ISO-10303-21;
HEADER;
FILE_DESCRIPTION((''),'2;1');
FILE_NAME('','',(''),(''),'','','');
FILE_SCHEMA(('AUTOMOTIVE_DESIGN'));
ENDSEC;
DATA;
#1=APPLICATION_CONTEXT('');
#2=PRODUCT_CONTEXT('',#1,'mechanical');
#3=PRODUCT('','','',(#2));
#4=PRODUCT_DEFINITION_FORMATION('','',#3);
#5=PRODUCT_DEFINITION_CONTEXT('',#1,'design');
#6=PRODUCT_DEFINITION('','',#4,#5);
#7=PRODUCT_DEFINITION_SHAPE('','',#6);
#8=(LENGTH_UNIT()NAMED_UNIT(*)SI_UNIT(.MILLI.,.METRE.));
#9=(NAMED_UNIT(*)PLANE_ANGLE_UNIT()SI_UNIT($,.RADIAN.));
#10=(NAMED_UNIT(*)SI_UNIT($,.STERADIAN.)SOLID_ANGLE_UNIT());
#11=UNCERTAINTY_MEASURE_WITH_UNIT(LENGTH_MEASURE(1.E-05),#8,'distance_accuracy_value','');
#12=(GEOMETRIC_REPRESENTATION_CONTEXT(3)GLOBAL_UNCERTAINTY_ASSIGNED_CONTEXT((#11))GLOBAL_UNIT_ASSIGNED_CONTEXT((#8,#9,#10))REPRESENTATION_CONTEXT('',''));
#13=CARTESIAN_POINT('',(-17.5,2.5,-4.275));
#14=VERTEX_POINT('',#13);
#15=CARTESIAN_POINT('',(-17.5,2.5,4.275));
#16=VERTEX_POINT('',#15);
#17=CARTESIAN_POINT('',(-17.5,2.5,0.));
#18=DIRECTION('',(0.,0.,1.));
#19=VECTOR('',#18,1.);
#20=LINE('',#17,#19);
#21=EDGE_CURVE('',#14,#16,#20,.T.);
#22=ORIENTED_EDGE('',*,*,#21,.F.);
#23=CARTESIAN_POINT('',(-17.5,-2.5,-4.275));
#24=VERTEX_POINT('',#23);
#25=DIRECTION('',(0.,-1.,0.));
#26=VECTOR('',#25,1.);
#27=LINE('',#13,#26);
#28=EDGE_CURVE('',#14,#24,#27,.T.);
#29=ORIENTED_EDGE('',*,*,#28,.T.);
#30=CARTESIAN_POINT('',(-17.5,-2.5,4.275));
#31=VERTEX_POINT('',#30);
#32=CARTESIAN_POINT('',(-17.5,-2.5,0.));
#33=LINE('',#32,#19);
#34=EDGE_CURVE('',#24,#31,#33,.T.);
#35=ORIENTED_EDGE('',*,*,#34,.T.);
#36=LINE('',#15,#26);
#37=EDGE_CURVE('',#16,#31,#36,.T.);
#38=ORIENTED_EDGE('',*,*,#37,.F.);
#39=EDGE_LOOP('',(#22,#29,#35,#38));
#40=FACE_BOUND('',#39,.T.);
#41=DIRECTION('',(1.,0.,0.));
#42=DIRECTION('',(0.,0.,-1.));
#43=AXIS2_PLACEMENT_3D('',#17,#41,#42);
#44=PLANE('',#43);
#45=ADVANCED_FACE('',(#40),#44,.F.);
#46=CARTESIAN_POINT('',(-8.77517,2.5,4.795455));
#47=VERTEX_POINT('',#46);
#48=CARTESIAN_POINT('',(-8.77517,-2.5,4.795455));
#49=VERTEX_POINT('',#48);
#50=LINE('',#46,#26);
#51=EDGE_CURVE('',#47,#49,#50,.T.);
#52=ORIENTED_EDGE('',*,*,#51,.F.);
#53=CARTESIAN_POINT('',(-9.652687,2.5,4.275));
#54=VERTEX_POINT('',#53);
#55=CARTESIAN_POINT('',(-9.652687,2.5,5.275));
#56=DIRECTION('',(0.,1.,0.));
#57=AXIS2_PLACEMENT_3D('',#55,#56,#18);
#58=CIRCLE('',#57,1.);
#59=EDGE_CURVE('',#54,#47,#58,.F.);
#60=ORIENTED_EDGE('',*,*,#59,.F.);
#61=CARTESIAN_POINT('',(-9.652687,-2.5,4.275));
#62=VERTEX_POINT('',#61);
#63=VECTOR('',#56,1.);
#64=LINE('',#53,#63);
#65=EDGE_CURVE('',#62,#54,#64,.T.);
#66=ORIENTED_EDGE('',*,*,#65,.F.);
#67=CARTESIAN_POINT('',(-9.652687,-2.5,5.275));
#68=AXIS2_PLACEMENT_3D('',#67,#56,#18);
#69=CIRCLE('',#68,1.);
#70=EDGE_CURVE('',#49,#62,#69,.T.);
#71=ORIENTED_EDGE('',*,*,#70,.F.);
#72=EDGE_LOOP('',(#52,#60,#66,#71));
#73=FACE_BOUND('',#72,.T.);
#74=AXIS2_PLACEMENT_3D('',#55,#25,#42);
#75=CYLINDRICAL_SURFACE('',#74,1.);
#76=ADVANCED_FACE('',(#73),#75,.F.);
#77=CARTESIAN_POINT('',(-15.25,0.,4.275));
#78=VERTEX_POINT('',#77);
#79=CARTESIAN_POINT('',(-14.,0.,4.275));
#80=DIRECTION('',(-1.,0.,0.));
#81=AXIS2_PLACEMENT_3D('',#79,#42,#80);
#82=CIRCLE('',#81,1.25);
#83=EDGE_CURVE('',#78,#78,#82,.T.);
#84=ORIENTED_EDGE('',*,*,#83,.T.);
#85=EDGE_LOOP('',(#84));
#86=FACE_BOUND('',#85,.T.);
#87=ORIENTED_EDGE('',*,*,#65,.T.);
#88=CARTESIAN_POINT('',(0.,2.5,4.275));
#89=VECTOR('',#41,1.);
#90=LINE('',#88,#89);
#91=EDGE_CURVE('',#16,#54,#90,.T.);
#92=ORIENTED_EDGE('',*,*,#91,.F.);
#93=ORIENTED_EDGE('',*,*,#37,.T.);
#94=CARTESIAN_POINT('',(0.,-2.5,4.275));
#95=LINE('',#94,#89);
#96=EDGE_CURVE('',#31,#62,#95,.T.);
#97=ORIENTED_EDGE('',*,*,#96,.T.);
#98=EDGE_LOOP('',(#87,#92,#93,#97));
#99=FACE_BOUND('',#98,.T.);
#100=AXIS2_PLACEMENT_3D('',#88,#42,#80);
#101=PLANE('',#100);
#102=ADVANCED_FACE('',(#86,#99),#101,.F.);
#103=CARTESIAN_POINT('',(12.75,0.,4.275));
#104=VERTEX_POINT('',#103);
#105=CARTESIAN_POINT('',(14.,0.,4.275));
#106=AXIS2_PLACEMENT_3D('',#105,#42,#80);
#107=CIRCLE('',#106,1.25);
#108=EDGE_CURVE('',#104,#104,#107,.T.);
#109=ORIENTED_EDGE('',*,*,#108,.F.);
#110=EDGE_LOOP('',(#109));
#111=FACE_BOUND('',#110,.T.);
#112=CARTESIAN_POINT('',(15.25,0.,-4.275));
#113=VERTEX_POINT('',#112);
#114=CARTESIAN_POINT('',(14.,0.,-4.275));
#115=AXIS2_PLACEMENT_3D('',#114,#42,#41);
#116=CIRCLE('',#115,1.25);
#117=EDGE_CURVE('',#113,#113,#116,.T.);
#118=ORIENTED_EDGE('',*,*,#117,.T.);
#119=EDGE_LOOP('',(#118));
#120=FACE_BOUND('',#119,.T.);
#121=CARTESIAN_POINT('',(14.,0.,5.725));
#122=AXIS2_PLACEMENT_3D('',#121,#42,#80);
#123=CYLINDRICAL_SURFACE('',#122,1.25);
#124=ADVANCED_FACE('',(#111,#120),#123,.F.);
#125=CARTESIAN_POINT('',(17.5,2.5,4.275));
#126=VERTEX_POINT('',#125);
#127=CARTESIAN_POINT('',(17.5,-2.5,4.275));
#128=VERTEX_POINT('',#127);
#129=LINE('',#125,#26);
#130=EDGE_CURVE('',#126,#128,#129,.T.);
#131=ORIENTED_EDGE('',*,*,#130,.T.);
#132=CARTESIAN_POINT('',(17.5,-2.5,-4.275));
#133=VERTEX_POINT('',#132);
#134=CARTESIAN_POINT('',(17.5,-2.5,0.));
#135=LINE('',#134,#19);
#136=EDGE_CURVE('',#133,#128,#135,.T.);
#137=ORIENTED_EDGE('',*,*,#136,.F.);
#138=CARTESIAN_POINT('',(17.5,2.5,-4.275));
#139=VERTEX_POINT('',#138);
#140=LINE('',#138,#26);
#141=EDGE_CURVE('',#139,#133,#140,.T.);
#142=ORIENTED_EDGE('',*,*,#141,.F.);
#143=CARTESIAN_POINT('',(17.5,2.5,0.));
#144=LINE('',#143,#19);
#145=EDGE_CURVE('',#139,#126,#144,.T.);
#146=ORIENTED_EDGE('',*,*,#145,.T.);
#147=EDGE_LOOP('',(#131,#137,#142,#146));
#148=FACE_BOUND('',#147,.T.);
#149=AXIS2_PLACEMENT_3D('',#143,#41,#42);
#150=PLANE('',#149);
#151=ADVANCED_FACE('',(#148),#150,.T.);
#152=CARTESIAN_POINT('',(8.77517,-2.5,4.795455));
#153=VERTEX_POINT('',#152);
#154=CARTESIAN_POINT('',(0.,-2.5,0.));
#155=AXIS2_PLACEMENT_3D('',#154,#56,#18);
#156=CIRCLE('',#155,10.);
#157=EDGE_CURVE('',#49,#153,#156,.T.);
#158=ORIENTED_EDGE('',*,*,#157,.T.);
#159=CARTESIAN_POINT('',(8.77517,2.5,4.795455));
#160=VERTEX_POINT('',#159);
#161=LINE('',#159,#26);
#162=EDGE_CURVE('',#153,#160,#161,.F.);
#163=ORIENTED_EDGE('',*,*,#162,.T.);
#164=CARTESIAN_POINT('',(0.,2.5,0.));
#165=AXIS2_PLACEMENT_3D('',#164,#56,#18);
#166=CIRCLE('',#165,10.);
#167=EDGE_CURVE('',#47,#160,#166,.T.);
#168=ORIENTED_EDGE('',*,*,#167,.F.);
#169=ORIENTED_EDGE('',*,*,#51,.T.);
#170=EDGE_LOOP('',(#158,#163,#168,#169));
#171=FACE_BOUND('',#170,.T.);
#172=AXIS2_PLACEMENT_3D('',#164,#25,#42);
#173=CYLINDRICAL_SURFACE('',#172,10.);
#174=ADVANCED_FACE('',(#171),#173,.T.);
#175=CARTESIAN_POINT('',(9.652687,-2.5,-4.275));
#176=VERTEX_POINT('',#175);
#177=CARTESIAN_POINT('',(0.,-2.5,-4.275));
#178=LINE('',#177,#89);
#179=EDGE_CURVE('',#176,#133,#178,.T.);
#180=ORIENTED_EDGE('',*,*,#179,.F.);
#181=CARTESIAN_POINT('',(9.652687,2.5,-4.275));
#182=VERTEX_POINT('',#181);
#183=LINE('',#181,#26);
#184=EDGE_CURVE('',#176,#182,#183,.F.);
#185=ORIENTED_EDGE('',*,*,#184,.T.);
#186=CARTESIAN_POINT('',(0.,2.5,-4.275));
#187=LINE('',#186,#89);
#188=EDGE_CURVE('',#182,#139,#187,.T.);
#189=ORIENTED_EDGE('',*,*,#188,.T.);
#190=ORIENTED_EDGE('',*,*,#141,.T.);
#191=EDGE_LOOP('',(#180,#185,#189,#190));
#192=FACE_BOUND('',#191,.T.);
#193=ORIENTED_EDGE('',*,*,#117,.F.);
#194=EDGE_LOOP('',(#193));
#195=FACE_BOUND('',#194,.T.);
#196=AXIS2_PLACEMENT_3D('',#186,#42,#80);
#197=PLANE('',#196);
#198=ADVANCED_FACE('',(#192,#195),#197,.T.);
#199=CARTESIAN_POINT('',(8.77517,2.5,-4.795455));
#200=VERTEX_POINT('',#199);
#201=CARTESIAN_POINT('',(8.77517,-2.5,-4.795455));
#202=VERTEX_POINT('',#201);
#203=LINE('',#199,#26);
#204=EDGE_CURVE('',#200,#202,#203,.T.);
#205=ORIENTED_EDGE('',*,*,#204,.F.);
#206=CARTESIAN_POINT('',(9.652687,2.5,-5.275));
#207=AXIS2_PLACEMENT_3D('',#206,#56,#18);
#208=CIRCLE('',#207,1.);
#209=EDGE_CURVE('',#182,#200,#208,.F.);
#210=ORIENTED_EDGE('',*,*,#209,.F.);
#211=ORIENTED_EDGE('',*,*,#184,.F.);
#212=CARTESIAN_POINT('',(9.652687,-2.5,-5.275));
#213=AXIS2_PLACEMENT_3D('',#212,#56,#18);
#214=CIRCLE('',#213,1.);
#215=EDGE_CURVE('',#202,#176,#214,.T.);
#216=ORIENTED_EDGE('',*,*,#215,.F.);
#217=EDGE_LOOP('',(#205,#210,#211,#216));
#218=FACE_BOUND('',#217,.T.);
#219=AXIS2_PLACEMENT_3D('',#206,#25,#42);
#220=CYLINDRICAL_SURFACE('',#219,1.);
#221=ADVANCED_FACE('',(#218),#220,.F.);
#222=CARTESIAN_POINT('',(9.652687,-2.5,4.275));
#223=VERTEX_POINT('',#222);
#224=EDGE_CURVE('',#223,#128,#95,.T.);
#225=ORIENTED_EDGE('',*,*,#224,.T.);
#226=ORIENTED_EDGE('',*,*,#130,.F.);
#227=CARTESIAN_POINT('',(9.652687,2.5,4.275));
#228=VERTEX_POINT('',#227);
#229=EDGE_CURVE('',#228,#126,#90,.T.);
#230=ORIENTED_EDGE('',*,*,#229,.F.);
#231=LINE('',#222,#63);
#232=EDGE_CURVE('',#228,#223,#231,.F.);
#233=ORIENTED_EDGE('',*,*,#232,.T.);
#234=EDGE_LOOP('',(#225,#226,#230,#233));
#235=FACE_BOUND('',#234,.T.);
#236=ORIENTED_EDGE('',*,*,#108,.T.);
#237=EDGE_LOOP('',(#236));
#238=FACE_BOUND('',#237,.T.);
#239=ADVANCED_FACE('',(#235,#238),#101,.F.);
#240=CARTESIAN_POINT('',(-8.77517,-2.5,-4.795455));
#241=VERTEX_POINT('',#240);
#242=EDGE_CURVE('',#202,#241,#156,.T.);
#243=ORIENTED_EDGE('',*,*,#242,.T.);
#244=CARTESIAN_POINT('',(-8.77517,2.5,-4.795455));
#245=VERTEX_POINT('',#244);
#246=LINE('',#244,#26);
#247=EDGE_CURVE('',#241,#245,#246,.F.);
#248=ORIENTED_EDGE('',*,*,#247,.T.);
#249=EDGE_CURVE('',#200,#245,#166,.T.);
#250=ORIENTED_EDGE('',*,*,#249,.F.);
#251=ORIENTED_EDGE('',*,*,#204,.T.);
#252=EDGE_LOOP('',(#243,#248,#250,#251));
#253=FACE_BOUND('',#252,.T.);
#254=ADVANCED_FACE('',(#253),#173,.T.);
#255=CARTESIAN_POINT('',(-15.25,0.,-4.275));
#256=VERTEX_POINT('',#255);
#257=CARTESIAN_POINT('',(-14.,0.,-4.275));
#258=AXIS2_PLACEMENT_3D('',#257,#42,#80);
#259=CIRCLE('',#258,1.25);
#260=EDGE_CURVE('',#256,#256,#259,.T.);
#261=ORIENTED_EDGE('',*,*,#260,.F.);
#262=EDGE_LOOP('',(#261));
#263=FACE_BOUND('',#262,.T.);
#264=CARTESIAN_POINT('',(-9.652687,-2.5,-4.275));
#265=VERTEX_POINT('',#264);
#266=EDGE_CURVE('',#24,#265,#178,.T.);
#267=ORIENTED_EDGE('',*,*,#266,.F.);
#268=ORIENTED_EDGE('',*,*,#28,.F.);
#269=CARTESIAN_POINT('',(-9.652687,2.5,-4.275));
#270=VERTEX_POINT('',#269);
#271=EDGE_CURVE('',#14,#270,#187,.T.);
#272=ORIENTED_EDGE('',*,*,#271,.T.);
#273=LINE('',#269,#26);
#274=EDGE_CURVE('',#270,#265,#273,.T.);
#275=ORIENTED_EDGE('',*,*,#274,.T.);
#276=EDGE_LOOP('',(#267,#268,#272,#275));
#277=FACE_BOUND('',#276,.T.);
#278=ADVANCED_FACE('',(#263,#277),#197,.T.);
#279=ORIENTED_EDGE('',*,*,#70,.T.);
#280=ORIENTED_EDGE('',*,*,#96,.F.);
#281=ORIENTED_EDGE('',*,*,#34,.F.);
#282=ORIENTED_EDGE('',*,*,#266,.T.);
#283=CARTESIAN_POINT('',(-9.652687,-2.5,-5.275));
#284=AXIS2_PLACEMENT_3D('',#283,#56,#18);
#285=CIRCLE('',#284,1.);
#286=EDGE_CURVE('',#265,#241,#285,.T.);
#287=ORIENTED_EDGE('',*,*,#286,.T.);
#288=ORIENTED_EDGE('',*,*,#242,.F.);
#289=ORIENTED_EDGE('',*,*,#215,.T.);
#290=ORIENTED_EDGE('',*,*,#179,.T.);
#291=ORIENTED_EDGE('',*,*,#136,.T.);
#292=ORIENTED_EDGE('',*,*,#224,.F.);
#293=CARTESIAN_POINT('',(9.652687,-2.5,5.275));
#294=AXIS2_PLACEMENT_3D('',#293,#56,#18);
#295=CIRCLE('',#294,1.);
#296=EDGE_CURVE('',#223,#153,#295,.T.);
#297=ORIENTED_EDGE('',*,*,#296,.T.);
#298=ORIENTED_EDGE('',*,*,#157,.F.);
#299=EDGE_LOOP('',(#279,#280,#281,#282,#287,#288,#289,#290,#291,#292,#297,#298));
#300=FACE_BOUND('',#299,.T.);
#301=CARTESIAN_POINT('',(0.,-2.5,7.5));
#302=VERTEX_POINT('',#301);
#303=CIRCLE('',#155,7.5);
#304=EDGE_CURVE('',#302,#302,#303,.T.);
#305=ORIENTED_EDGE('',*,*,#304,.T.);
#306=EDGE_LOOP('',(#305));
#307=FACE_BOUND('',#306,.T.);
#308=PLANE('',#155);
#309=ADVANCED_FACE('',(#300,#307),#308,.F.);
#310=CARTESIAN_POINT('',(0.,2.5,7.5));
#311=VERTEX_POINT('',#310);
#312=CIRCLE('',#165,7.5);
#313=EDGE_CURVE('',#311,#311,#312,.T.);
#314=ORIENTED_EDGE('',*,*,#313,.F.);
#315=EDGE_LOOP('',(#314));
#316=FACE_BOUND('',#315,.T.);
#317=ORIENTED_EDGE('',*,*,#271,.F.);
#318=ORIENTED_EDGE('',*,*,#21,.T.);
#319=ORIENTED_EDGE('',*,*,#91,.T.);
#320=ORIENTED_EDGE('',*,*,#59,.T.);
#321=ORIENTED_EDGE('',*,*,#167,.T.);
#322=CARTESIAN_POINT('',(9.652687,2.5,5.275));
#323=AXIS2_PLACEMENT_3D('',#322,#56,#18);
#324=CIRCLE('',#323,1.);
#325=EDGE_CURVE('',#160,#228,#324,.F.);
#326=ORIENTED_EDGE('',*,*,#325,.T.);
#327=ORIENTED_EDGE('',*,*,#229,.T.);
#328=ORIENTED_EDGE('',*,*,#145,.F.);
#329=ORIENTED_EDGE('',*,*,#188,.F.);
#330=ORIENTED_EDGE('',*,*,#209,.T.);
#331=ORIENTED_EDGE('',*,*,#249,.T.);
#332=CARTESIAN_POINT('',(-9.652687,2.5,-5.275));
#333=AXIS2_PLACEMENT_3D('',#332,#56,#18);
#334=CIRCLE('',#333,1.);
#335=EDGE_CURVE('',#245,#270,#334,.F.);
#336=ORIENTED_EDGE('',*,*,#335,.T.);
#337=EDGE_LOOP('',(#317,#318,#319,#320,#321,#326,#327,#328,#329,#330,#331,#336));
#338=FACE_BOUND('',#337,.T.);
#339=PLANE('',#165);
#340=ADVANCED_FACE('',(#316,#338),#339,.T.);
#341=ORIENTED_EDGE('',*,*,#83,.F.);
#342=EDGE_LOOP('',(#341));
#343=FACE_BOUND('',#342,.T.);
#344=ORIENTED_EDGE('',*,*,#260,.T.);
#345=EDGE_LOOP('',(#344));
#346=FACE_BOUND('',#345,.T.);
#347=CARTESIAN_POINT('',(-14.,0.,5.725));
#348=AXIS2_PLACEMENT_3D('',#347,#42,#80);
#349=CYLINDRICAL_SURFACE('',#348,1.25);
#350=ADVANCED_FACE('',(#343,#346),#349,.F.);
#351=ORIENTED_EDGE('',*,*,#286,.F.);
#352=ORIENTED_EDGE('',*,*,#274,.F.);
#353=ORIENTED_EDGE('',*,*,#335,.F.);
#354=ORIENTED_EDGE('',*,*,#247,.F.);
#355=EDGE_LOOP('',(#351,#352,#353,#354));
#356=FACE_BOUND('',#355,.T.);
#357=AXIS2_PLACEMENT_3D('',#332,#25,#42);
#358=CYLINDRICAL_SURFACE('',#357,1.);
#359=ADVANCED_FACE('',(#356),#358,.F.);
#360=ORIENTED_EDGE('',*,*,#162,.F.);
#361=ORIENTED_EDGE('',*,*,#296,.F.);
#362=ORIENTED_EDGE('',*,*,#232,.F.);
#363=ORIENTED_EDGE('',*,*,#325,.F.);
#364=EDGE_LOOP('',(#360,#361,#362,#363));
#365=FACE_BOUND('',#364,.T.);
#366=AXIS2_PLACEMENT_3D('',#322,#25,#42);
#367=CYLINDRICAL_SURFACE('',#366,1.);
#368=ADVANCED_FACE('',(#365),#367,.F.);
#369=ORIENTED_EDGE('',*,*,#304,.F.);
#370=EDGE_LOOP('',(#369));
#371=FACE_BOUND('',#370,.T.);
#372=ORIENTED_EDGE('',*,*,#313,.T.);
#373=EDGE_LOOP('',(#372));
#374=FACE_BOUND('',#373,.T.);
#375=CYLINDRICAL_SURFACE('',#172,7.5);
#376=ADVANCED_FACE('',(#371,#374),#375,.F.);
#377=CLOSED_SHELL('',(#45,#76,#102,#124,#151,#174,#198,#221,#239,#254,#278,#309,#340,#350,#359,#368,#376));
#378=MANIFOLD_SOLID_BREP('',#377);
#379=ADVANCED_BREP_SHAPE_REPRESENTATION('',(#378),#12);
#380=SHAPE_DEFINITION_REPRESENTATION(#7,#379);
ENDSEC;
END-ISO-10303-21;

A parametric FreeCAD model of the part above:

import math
import FreeCAD as App
import Part
import Sketcher
Q = App.Units.Quantity


def edges_at(feature, points):
    """Names of the edges that pass closest to the given points."""
    edges = feature.Shape.Edges
    near = lambda p: min(range(len(edges)), key=lambda i: edges[i].distToShape(Part.Vertex(*p))[0])
    return sorted({f"Edge{near(p) + 1}" for p in points})

doc = App.newDocument("Part")
params = doc.addObject("Spreadsheet::Sheet", "Params")
for row, (alias, value) in enumerate([
    ("sketch1_diameter", "15 mm"),
    ("sketch1_radius", "10 mm"),
    ("sketch1_height", "8.55 mm"),
    ("pad1_length", "5 mm"),
    ("sketch2_diameter", "2.5 mm"),
    ("pocket1_length", "10 mm"),
    ("fillet_radius", "1 mm"),
], start=1):
    params.set(f"A{row}", alias)
    params.set(f"B{row}", "=" + value)
    params.setAlias(f"B{row}", alias)

body = doc.addObject("PartDesign::Body", "Body")

# Sketch on XZ plane
sketch1 = body.newObject("Sketcher::SketchObject", "Sketch")
sketch1.AttachmentSupport = (doc.getObject("XZ_Plane"), [""])
sketch1.MapMode = "FlatFace"
sketch1.addGeometry(Part.LineSegment(App.Vector(-9, -4, 0), App.Vector(-18, -4, 0)), False)
sketch1.addGeometry(Part.LineSegment(App.Vector(-18, -4, 0), App.Vector(-18, 4, 0)), False)
sketch1.addGeometry(Part.LineSegment(App.Vector(-18, 4, 0), App.Vector(-9, 4, 0)), False)
sketch1.addGeometry(Part.ArcOfCircle(Part.Circle(App.Vector(0, 0, 0), App.Vector(0, 0, 1), 10), math.radians(25), math.radians(155)), False)
sketch1.addGeometry(Part.LineSegment(App.Vector(9, 4, 0), App.Vector(18, 4, 0)), False)
sketch1.addGeometry(Part.LineSegment(App.Vector(18, 4, 0), App.Vector(18, -4, 0)), False)
sketch1.addGeometry(Part.LineSegment(App.Vector(18, -4, 0), App.Vector(9, -4, 0)), False)
sketch1.addGeometry(Part.ArcOfCircle(Part.Circle(App.Vector(0, 0, 0), App.Vector(0, 0, 1), 10), math.radians(-155), math.radians(-25)), False)
sketch1.addGeometry(Part.Circle(App.Vector(0, 0, 0), App.Vector(0, 0, 1), 8), False)
sketch1.addConstraint(Sketcher.Constraint("Coincident", 0, 2, 1, 1))
sketch1.addConstraint(Sketcher.Constraint("Coincident", 1, 2, 2, 1))
sketch1.addConstraint(Sketcher.Constraint("Coincident", 2, 2, 3, 2))
sketch1.addConstraint(Sketcher.Constraint("Coincident", 3, 1, 4, 1))
sketch1.addConstraint(Sketcher.Constraint("Coincident", 4, 2, 5, 1))
sketch1.addConstraint(Sketcher.Constraint("Coincident", 5, 2, 6, 1))
sketch1.addConstraint(Sketcher.Constraint("Coincident", 6, 2, 7, 2))
sketch1.addConstraint(Sketcher.Constraint("Coincident", 7, 1, 0, 1))
sketch1.addConstraint(Sketcher.Constraint("Horizontal", 0))
sketch1.addConstraint(Sketcher.Constraint("Vertical", 1))
sketch1.addConstraint(Sketcher.Constraint("Horizontal", 2))
sketch1.addConstraint(Sketcher.Constraint("Horizontal", 4))
sketch1.addConstraint(Sketcher.Constraint("Vertical", 5))
sketch1.addConstraint(Sketcher.Constraint("Horizontal", 6))
sketch1.addConstraint(Sketcher.Constraint("Coincident", 3, 3, -1, 1))
sketch1.addConstraint(Sketcher.Constraint("Coincident", 7, 3, -1, 1))
sketch1.addConstraint(Sketcher.Constraint("Coincident", 8, 3, -1, 1))
sketch1.addConstraint(Sketcher.Constraint("Equal", 3, 7))
sketch1.addConstraint(Sketcher.Constraint("Symmetric", 0, 2, 4, 2, -1, 1))
sketch1.addConstraint(Sketcher.Constraint("Horizontal", 2, 2, 3, 1))
sketch1.addConstraint(Sketcher.Constraint("Horizontal", 0, 2, 5, 2))
sketch1.addConstraint(Sketcher.Constraint("Diameter", 8, Q("15 mm")))
sketch1.addConstraint(Sketcher.Constraint("Radius", 3, Q("10 mm")))
sketch1.addConstraint(Sketcher.Constraint("DistanceY", 1, 1, 1, 2, Q("8.55 mm")))
sketch1.addConstraint(Sketcher.Constraint("DistanceX", 0, 2, -1, 1, Q("17.5 mm")))
sketch1.setExpression("Constraints[21]", "Params.sketch1_diameter")
sketch1.setExpression("Constraints[22]", "Params.sketch1_radius")
sketch1.setExpression("Constraints[23]", "Params.sketch1_height")
pad1 = body.newObject("PartDesign::Pad", "Pad")
pad1.Profile = sketch1
pad1.setExpression("Length", "Params.pad1_length")
pad1.Midplane = True

# Sketch on XY plane
sketch2 = body.newObject("Sketcher::SketchObject", "Sketch001")
sketch2.AttachmentSupport = (doc.getObject("XY_Plane"), [""])
sketch2.MapMode = "FlatFace"
sketch2.AttachmentOffset = App.Placement(App.Vector(0, 0, -4.275), App.Rotation())
sketch2.addGeometry(Part.Circle(App.Vector(-14, 0, 0), App.Vector(0, 0, 1), 1.2), False)
sketch2.addGeometry(Part.Circle(App.Vector(14, 0, 0), App.Vector(0, 0, 1), 1.2), False)
sketch2.addConstraint(Sketcher.Constraint("Equal", 0, 1))
sketch2.addConstraint(Sketcher.Constraint("Symmetric", 0, 3, 1, 3, -1, 1))
sketch2.addConstraint(Sketcher.Constraint("PointOnObject", 0, 3, -1))
sketch2.addConstraint(Sketcher.Constraint("Diameter", 0, Q("2.5 mm")))
sketch2.addConstraint(Sketcher.Constraint("DistanceX", 0, 3, -1, 1, Q("14 mm")))
sketch2.setExpression("Constraints[3]", "Params.sketch2_diameter")
pocket1 = body.newObject("PartDesign::Pocket", "Pocket")
pocket1.Profile = sketch2
pocket1.setExpression("Length", "Params.pocket1_length")
pocket1.Reversed = True
doc.recompute()

fillet = body.newObject("PartDesign::Fillet", "Fillet")
fillet.Base = (pocket1, edges_at(pocket1, [
    (-9.04, 0, 4.275),
    (-9.04, 0, -4.275),
    (9.04, 0, -4.275),
    (9.04, 0, 4.275),
]))
fillet.setExpression("Radius", "Params.fillet_radius")

doc.recompute()
